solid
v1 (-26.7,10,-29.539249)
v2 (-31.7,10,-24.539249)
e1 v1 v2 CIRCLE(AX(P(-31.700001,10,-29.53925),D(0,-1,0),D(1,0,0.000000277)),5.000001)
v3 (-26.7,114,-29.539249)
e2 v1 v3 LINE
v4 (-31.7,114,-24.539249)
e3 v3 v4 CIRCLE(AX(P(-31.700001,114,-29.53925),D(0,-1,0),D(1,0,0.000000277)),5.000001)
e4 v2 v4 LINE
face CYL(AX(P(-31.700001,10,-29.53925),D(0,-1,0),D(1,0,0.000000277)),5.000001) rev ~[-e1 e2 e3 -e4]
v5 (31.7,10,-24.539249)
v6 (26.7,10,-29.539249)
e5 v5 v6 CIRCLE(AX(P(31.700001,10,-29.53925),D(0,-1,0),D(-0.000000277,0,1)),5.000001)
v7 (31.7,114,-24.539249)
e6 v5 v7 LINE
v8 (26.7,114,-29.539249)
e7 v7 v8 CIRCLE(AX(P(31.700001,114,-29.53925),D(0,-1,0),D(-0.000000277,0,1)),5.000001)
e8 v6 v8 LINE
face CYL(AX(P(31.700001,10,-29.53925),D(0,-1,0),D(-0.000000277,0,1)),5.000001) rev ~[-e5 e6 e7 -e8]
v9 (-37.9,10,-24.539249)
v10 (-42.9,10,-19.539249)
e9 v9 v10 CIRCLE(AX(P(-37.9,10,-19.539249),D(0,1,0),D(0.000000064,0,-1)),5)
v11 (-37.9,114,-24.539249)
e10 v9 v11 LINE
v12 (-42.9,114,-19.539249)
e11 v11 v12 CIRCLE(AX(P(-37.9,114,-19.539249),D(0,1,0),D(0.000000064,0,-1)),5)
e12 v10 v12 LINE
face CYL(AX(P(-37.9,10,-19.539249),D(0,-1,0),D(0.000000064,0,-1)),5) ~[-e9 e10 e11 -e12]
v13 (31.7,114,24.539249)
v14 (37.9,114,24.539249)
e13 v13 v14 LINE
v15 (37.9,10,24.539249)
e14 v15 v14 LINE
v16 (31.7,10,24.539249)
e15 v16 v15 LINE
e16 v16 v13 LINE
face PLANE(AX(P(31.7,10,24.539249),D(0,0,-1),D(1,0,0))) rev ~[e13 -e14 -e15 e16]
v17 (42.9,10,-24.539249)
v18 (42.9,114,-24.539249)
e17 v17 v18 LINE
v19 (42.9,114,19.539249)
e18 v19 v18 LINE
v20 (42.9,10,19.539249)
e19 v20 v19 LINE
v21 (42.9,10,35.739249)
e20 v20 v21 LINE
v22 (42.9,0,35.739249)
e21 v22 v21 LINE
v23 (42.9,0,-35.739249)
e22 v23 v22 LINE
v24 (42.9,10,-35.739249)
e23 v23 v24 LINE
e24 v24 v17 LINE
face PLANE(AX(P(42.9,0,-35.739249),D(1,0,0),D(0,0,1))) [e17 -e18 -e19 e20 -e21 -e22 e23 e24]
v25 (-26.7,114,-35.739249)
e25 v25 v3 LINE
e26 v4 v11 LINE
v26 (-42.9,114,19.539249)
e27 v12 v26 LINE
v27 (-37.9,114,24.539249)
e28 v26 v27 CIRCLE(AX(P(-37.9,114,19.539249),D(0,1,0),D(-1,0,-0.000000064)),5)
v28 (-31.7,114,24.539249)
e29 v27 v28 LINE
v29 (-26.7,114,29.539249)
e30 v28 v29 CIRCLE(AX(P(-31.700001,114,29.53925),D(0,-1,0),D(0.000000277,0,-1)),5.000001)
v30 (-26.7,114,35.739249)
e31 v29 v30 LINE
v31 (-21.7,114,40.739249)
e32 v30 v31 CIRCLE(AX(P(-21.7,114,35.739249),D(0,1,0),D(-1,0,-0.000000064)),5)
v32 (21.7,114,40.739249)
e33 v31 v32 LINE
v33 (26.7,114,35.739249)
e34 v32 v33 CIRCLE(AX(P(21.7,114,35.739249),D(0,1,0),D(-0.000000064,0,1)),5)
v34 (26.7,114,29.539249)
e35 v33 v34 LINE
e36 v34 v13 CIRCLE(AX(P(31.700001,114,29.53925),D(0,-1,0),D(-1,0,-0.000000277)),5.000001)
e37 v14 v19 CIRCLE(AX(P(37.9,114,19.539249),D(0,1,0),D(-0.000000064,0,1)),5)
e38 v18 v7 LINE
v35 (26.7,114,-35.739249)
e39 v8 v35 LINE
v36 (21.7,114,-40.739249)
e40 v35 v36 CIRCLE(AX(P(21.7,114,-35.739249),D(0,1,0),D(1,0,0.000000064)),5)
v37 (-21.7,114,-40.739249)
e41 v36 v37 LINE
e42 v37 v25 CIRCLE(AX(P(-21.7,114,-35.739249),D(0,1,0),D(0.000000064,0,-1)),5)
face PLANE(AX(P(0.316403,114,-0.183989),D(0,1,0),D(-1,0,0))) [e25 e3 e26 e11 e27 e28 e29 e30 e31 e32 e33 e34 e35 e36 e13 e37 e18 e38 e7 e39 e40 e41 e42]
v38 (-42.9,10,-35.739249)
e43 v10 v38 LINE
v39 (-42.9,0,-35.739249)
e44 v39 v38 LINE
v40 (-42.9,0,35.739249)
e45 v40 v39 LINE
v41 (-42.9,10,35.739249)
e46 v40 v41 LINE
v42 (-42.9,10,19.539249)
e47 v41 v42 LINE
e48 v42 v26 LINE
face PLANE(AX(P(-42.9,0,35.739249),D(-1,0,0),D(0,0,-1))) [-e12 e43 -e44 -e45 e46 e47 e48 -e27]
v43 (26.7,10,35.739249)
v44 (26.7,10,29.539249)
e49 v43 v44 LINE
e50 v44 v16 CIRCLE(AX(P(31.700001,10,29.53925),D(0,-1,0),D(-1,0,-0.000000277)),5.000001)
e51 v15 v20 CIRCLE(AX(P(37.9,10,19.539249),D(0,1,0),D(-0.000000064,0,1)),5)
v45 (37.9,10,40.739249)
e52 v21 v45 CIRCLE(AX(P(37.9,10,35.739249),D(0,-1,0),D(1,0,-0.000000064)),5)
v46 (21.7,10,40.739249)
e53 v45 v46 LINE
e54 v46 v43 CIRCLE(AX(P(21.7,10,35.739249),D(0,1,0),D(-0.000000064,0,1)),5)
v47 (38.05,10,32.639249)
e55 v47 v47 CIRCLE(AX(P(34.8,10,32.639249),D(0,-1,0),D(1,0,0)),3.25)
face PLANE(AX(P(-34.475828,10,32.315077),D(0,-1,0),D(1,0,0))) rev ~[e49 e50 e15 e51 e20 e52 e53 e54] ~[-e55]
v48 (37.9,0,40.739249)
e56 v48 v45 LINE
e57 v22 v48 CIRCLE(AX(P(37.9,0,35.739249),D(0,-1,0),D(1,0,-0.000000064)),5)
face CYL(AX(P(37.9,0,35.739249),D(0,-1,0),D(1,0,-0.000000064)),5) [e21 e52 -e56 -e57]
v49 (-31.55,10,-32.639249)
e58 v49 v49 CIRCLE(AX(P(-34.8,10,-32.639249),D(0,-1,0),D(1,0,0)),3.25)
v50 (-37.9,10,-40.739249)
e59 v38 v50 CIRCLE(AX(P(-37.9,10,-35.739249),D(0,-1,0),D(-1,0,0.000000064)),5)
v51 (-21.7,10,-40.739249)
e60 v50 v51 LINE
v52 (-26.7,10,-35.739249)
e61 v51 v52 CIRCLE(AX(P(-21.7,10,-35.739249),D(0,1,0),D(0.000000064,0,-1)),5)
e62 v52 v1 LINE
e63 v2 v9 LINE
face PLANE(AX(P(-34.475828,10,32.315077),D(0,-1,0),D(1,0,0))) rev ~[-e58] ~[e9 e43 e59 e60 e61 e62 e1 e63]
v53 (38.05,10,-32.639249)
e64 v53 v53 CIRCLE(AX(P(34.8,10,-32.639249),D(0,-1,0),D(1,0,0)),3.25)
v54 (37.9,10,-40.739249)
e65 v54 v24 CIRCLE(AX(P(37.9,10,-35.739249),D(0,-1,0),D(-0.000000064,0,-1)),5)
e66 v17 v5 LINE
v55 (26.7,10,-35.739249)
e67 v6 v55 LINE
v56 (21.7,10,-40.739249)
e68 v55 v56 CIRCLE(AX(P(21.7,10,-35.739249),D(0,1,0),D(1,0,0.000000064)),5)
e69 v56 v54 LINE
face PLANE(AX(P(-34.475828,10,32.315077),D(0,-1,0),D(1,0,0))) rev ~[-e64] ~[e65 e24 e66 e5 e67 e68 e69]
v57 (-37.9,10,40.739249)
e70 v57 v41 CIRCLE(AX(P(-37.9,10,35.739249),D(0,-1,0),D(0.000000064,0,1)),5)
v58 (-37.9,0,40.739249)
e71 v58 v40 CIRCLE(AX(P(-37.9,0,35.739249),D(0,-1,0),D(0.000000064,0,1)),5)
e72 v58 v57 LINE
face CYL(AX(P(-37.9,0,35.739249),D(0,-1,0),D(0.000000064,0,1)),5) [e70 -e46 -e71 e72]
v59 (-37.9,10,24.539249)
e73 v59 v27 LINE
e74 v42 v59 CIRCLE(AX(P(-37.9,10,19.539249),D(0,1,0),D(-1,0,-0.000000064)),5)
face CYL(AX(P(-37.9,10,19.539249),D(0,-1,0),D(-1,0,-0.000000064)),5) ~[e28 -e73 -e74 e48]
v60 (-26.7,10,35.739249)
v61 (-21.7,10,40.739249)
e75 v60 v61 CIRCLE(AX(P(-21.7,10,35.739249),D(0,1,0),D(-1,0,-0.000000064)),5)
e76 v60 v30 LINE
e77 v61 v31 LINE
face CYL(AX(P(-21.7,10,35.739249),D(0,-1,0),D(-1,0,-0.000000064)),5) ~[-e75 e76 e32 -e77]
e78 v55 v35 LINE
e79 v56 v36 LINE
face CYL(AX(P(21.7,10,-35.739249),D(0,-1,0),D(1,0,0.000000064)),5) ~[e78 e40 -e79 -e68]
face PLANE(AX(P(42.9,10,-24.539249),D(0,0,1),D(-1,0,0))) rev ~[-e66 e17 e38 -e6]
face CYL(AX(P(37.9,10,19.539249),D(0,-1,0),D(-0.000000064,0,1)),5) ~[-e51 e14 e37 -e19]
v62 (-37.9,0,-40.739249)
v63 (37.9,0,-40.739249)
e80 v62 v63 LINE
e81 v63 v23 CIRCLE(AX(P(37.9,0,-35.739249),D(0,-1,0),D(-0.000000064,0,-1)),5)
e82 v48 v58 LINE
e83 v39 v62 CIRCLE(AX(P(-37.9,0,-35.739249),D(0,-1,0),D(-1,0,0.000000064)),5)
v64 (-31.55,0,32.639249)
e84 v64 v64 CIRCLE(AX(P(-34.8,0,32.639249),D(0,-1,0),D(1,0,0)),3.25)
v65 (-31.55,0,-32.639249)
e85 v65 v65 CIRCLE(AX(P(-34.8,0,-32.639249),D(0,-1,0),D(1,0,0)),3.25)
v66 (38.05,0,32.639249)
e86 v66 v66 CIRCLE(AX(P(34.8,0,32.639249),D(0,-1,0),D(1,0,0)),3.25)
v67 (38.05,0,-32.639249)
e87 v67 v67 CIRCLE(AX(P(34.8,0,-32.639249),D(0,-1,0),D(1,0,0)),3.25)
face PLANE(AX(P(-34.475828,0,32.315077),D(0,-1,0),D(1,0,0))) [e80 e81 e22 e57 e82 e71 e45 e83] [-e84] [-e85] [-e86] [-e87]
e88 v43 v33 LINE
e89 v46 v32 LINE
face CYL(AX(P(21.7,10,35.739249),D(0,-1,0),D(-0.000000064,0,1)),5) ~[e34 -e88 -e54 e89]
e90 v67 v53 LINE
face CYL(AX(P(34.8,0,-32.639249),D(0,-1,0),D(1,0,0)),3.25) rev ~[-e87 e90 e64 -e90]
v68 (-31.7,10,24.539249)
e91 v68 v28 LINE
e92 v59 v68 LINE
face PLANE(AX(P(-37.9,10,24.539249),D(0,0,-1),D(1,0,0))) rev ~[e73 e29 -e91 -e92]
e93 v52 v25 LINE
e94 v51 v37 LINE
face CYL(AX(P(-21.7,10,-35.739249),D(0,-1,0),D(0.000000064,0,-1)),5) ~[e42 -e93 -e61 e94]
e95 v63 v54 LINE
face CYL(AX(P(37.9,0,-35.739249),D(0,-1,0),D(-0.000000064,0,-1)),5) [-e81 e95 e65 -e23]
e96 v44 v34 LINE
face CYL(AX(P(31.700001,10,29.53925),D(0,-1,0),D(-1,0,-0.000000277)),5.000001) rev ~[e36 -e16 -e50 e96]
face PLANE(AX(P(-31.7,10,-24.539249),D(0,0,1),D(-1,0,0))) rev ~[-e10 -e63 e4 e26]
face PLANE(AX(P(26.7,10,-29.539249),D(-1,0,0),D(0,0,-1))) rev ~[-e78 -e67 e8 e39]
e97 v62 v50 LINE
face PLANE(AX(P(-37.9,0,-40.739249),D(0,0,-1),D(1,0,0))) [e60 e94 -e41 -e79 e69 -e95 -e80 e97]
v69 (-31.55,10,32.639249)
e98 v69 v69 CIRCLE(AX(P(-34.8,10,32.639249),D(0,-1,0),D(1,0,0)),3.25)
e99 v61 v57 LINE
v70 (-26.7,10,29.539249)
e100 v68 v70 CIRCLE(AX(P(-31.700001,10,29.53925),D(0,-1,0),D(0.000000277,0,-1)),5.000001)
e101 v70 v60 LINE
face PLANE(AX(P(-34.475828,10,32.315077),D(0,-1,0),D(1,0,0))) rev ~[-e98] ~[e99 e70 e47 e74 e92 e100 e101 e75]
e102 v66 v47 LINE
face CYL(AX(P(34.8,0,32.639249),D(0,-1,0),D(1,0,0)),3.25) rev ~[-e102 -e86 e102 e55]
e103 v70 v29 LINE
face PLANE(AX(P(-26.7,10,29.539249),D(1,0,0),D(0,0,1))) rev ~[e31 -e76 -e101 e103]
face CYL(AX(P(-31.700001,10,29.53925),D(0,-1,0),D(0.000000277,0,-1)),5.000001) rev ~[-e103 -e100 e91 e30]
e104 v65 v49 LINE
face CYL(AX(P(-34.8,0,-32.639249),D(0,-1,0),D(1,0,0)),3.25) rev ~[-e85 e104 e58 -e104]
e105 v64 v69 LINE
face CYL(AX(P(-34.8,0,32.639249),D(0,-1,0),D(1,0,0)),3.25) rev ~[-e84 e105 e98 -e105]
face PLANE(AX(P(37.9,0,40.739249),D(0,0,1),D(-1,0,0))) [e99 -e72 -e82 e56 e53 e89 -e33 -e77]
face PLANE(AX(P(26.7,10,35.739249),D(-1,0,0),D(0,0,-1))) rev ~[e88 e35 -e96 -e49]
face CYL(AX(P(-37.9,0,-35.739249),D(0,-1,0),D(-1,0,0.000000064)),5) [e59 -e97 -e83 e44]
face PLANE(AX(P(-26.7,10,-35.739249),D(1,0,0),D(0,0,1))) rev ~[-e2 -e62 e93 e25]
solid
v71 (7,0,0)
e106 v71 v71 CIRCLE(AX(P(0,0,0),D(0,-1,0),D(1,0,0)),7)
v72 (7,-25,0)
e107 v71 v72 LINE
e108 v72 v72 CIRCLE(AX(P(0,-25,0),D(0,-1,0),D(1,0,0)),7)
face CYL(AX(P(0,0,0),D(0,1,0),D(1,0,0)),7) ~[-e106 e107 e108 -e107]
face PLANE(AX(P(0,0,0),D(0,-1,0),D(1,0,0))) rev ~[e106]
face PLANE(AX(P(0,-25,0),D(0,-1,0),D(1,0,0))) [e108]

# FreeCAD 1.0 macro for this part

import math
import FreeCAD as App
import Part
import Sketcher

doc = App.newDocument("Part")
body = doc.addObject("PartDesign::Body", "Body")

# Sketch on XZ plane
sketch1 = body.newObject("Sketcher::SketchObject", "Sketch")
sketch1.AttachmentSupport = (doc.getObject("XZ_Plane"), [""])
sketch1.MapMode = "FlatFace"
sketch1.addGeometry([
    Part.LineSegment(App.Vector(-42.9, 35.7, 0), App.Vector(-42.9, -35.7, 0)),  # 0
    Part.ArcOfCircle(Part.Circle(App.Vector(-37.9, -35.7, 0), App.Vector(0, 0, 1), 5), math.radians(180), math.radians(270)),  # 1
    Part.LineSegment(App.Vector(-37.9, -40.7, 0), App.Vector(37.9, -40.7, 0)),  # 2
    Part.ArcOfCircle(Part.Circle(App.Vector(37.9, -35.7, 0), App.Vector(0, 0, 1), 5), math.radians(-90), math.radians(0)),  # 3
    Part.LineSegment(App.Vector(42.9, -35.7, 0), App.Vector(42.9, 35.7, 0)),  # 4
    Part.ArcOfCircle(Part.Circle(App.Vector(37.9, 35.7, 0), App.Vector(0, 0, 1), 5), math.radians(0), math.radians(90)),  # 5
    Part.LineSegment(App.Vector(37.9, 40.7, 0), App.Vector(-37.9, 40.7, 0)),  # 6
    Part.ArcOfCircle(Part.Circle(App.Vector(-37.9, 35.7, 0), App.Vector(0, 0, 1), 5), math.radians(90), math.radians(180)),  # 7
    Part.Circle(App.Vector(-34.8, -32.6, 0), App.Vector(0, 0, 1), 3.2),  # 8
], False)
sketch1.addConstraint([
    Sketcher.Constraint("Tangent", 0, 2, 1, 1),
    Sketcher.Constraint("Tangent", 1, 2, 2, 1),
    Sketcher.Constraint("Tangent", 2, 2, 3, 1),
    Sketcher.Constraint("Tangent", 3, 2, 4, 1),
    Sketcher.Constraint("Tangent", 4, 2, 5, 1),
    Sketcher.Constraint("Tangent", 5, 2, 6, 1),
    Sketcher.Constraint("Tangent", 6, 2, 7, 1),
    Sketcher.Constraint("Tangent", 7, 2, 0, 1),
    Sketcher.Constraint("Vertical", 0),
    Sketcher.Constraint("Horizontal", 2),
    Sketcher.Constraint("Vertical", 4),
    Sketcher.Constraint("Horizontal", 6),
    Sketcher.Constraint("Equal", 1, 3),
    Sketcher.Constraint("Equal", 3, 5),
    Sketcher.Constraint("Equal", 5, 7),
    Sketcher.Constraint("Symmetric", 1, 3, 5, 3, -1, 1),
    Sketcher.Constraint("Radius", 1, 5.0),
    Sketcher.Constraint("Diameter", 8, 6.5),
    Sketcher.Constraint("DistanceX", 2, 1, 2, 2, 75.8),
    Sketcher.Constraint("DistanceX", 8, 3, -1, 1, 34.8),
    Sketcher.Constraint("DistanceY", 1, 3, 8, 3, 3.1),
    Sketcher.Constraint("DistanceY", 0, 2, 0, 1, 71.478498),
])
pad1 = body.newObject("PartDesign::Pad", "Pad")
pad1.Profile = sketch1
pad1.Length = 10
pad1.Reversed = True

# Sketch on XZ plane
sketch2 = body.newObject("Sketcher::SketchObject", "Sketch001")
sketch2.AttachmentSupport = (doc.getObject("XZ_Plane"), [""])
sketch2.MapMode = "FlatFace"
sketch2.AttachmentOffset = App.Placement(App.Vector(0, 0, -10), App.Rotation())
sketch2.addGeometry([
    Part.ArcOfCircle(Part.Circle(App.Vector(21.7, -35.7, 0), App.Vector(0, 0, 1), 5), math.radians(-90), math.radians(0)),  # 0
    Part.LineSegment(App.Vector(21.7, -40.7, 0), App.Vector(-21.7, -40.7, 0)),  # 1
    Part.ArcOfCircle(Part.Circle(App.Vector(-21.7, -35.7, 0), App.Vector(0, 0, 1), 5), math.radians(180), math.radians(270)),  # 2
    Part.LineSegment(App.Vector(-26.7, -35.7, 0), App.Vector(-26.7, -29.5, 0)),  # 3
    Part.ArcOfCircle(Part.Circle(App.Vector(-31.7, -29.5, 0), App.Vector(0, 0, 1), 5), math.radians(0), math.radians(90)),  # 4
    Part.LineSegment(App.Vector(-31.7, -24.5, 0), App.Vector(-37.9, -24.5, 0)),  # 5
    Part.ArcOfCircle(Part.Circle(App.Vector(-37.9, -19.5, 0), App.Vector(0, 0, 1), 5), math.radians(180), math.radians(270)),  # 6
    Part.LineSegment(App.Vector(-42.9, -19.5, 0), App.Vector(-42.9, 19.5, 0)),  # 7
    Part.ArcOfCircle(Part.Circle(App.Vector(-37.9, 19.5, 0), App.Vector(0, 0, 1), 5), math.radians(90), math.radians(180)),  # 8
    Part.LineSegment(App.Vector(-37.9, 24.5, 0), App.Vector(-31.7, 24.5, 0)),  # 9
    Part.ArcOfCircle(Part.Circle(App.Vector(-31.7, 29.5, 0), App.Vector(0, 0, 1), 5), math.radians(-90), math.radians(0)),  # 10
    Part.LineSegment(App.Vector(-26.7, 29.5, 0), App.Vector(-26.7, 35.7, 0)),  # 11
    Part.ArcOfCircle(Part.Circle(App.Vector(-21.7, 35.7, 0), App.Vector(0, 0, 1), 5), math.radians(90), math.radians(180)),  # 12
    Part.LineSegment(App.Vector(-21.7, 40.7, 0), App.Vector(21.7, 40.7, 0)),  # 13
    Part.ArcOfCircle(Part.Circle(App.Vector(21.7, 35.7, 0), App.Vector(0, 0, 1), 5), math.radians(0), math.radians(90)),  # 14
    Part.LineSegment(App.Vector(26.7, 35.7, 0), App.Vector(26.7, 29.5, 0)),  # 15
    Part.ArcOfCircle(Part.Circle(App.Vector(31.7, 29.5, 0), App.Vector(0, 0, 1), 5), math.radians(-180), math.radians(-90)),  # 16
    Part.LineSegment(App.Vector(31.7, 24.5, 0), App.Vector(37.9, 24.5, 0)),  # 17
    Part.ArcOfCircle(Part.Circle(App.Vector(37.9, 19.5, 0), App.Vector(0, 0, 1), 5), math.radians(0), math.radians(90)),  # 18
    Part.LineSegment(App.Vector(42.9, 19.5, 0), App.Vector(42.9, -24.5, 0)),  # 19
    Part.LineSegment(App.Vector(42.9, -24.5, 0), App.Vector(31.7, -24.5, 0)),  # 20
    Part.ArcOfCircle(Part.Circle(App.Vector(31.7, -29.5, 0), App.Vector(0, 0, 1), 5), math.radians(90), math.radians(180)),  # 21
    Part.LineSegment(App.Vector(26.7, -29.5, 0), App.Vector(26.7, -35.7, 0)),  # 22
], False)
sketch2.addConstraint([
    Sketcher.Constraint("Tangent", 0, 1, 1, 1),
    Sketcher.Constraint("Tangent", 1, 2, 2, 2),
    Sketcher.Constraint("Tangent", 2, 1, 3, 1),
    Sketcher.Constraint("Tangent", 3, 2, 4, 1),
    Sketcher.Constraint("Tangent", 4, 2, 5, 1),
    Sketcher.Constraint("Tangent", 5, 2, 6, 2),
    Sketcher.Constraint("Tangent", 6, 1, 7, 1),
    Sketcher.Constraint("Tangent", 7, 2, 8, 2),
    Sketcher.Constraint("Tangent", 8, 1, 9, 1),
    Sketcher.Constraint("Tangent", 9, 2, 10, 1),
    Sketcher.Constraint("Tangent", 10, 2, 11, 1),
    Sketcher.Constraint("Tangent", 11, 2, 12, 2),
    Sketcher.Constraint("Tangent", 12, 1, 13, 1),
    Sketcher.Constraint("Tangent", 13, 2, 14, 2),
    Sketcher.Constraint("Tangent", 14, 1, 15, 1),
    Sketcher.Constraint("Tangent", 15, 2, 16, 1),
    Sketcher.Constraint("Tangent", 16, 2, 17, 1),
    Sketcher.Constraint("Tangent", 17, 2, 18, 2),
    Sketcher.Constraint("Tangent", 18, 1, 19, 1),
    Sketcher.Constraint("Coincident", 19, 2, 20, 1),
    Sketcher.Constraint("Tangent", 20, 2, 21, 1),
    Sketcher.Constraint("Tangent", 21, 2, 22, 1),
    Sketcher.Constraint("Tangent", 22, 2, 0, 2),
    Sketcher.Constraint("Horizontal", 1),
    Sketcher.Constraint("Vertical", 3),
    Sketcher.Constraint("Horizontal", 5),
    Sketcher.Constraint("Vertical", 7),
    Sketcher.Constraint("Horizontal", 9),
    Sketcher.Constraint("Vertical", 11),
    Sketcher.Constraint("Horizontal", 13),
    Sketcher.Constraint("Vertical", 15),
    Sketcher.Constraint("Horizontal", 17),
    Sketcher.Constraint("Vertical", 19),
    Sketcher.Constraint("Horizontal", 20),
    Sketcher.Constraint("Vertical", 22),
    Sketcher.Constraint("Equal", 0, 2),
    Sketcher.Constraint("Equal", 2, 4),
    Sketcher.Constraint("Equal", 4, 6),
    Sketcher.Constraint("Equal", 6, 8),
    Sketcher.Constraint("Equal", 8, 10),
    Sketcher.Constraint("Equal", 10, 12),
    Sketcher.Constraint("Equal", 12, 14),
    Sketcher.Constraint("Equal", 14, 16),
    Sketcher.Constraint("Equal", 16, 18),
    Sketcher.Constraint("Equal", 18, 21),
    Sketcher.Constraint("Symmetric", 0, 3, 12, 3, -1, 1),
    Sketcher.Constraint("Symmetric", 4, 3, 16, 3, -1, 1),
    Sketcher.Constraint("Symmetric", 10, 3, 16, 3, -2),
    Sketcher.Constraint("Horizontal", 4, 3, 21, 3),
    Sketcher.Constraint("Equal", 9, 17),
    Sketcher.Constraint("Equal", 17, 3),
    Sketcher.Constraint("Radius", 0, 5.0),
    Sketcher.Constraint("DistanceX", 1, 2, 1, 1, 43.4),
    Sketcher.Constraint("DistanceX", 5, 2, 5, 1, 6.2),
    Sketcher.Constraint("DistanceY", 7, 1, 7, 2, 39.078498),
])
pad2 = body.newObject("PartDesign::Pad", "Pad001")
pad2.Profile = sketch2
pad2.Length = 104
pad2.Reversed = True

# Sketch on XZ plane
sketch3 = body.newObject("Sketcher::SketchObject", "Sketch002")
sketch3.AttachmentSupport = (doc.getObject("XZ_Plane"), [""])
sketch3.MapMode = "FlatFace"
sketch3.addGeometry([
    Part.Circle(App.Vector(34.8, 32.6, 0), App.Vector(0, 0, 1), 3.2),
    Part.Circle(App.Vector(-34.8, 32.6, 0), App.Vector(0, 0, 1), 3.2),
    Part.Circle(App.Vector(-34.8, -32.6, 0), App.Vector(0, 0, 1), 3.2),
    Part.Circle(App.Vector(34.8, -32.6, 0), App.Vector(0, 0, 1), 3.2),
], False)
sketch3.addConstraint([
    Sketcher.Constraint("Equal", 0, 1),
    Sketcher.Constraint("Equal", 1, 2),
    Sketcher.Constraint("Equal", 2, 3),
    Sketcher.Constraint("Symmetric", 0, 3, 2, 3, -1, 1),
    Sketcher.Constraint("Symmetric", 1, 3, 3, 3, -1, 1),
    Sketcher.Constraint("Symmetric", 0, 3, 1, 3, -2),
    Sketcher.Constraint("Diameter", 0, 6.5),
    Sketcher.Constraint("DistanceX", -1, 1, 0, 3, 34.8),
    Sketcher.Constraint("DistanceY", 2, 3, 1, 3, 65.278498),
])
pocket1 = body.newObject("PartDesign::Pocket", "Pocket")
pocket1.Profile = sketch3
pocket1.Type = "ThroughAll"
body2 = doc.addObject("PartDesign::Body", "Body001")

# Sketch on XZ plane
sketch4 = body2.newObject("Sketcher::SketchObject", "Sketch003")
sketch4.AttachmentSupport = (doc.getObject("XZ_Plane001"), [""])
sketch4.MapMode = "FlatFace"
sketch4.addGeometry(Part.Circle(App.Vector(0, 0, 0), App.Vector(0, 0, 1), 7), False)
sketch4.addConstraint([
    Sketcher.Constraint("Coincident", 0, 3, -1, 1),
    Sketcher.Constraint("Diameter", 0, 14.0),
])
pad3 = body2.newObject("PartDesign::Pad", "Pad002")
pad3.Profile = sketch4
pad3.Length = 25

doc.recompute()
